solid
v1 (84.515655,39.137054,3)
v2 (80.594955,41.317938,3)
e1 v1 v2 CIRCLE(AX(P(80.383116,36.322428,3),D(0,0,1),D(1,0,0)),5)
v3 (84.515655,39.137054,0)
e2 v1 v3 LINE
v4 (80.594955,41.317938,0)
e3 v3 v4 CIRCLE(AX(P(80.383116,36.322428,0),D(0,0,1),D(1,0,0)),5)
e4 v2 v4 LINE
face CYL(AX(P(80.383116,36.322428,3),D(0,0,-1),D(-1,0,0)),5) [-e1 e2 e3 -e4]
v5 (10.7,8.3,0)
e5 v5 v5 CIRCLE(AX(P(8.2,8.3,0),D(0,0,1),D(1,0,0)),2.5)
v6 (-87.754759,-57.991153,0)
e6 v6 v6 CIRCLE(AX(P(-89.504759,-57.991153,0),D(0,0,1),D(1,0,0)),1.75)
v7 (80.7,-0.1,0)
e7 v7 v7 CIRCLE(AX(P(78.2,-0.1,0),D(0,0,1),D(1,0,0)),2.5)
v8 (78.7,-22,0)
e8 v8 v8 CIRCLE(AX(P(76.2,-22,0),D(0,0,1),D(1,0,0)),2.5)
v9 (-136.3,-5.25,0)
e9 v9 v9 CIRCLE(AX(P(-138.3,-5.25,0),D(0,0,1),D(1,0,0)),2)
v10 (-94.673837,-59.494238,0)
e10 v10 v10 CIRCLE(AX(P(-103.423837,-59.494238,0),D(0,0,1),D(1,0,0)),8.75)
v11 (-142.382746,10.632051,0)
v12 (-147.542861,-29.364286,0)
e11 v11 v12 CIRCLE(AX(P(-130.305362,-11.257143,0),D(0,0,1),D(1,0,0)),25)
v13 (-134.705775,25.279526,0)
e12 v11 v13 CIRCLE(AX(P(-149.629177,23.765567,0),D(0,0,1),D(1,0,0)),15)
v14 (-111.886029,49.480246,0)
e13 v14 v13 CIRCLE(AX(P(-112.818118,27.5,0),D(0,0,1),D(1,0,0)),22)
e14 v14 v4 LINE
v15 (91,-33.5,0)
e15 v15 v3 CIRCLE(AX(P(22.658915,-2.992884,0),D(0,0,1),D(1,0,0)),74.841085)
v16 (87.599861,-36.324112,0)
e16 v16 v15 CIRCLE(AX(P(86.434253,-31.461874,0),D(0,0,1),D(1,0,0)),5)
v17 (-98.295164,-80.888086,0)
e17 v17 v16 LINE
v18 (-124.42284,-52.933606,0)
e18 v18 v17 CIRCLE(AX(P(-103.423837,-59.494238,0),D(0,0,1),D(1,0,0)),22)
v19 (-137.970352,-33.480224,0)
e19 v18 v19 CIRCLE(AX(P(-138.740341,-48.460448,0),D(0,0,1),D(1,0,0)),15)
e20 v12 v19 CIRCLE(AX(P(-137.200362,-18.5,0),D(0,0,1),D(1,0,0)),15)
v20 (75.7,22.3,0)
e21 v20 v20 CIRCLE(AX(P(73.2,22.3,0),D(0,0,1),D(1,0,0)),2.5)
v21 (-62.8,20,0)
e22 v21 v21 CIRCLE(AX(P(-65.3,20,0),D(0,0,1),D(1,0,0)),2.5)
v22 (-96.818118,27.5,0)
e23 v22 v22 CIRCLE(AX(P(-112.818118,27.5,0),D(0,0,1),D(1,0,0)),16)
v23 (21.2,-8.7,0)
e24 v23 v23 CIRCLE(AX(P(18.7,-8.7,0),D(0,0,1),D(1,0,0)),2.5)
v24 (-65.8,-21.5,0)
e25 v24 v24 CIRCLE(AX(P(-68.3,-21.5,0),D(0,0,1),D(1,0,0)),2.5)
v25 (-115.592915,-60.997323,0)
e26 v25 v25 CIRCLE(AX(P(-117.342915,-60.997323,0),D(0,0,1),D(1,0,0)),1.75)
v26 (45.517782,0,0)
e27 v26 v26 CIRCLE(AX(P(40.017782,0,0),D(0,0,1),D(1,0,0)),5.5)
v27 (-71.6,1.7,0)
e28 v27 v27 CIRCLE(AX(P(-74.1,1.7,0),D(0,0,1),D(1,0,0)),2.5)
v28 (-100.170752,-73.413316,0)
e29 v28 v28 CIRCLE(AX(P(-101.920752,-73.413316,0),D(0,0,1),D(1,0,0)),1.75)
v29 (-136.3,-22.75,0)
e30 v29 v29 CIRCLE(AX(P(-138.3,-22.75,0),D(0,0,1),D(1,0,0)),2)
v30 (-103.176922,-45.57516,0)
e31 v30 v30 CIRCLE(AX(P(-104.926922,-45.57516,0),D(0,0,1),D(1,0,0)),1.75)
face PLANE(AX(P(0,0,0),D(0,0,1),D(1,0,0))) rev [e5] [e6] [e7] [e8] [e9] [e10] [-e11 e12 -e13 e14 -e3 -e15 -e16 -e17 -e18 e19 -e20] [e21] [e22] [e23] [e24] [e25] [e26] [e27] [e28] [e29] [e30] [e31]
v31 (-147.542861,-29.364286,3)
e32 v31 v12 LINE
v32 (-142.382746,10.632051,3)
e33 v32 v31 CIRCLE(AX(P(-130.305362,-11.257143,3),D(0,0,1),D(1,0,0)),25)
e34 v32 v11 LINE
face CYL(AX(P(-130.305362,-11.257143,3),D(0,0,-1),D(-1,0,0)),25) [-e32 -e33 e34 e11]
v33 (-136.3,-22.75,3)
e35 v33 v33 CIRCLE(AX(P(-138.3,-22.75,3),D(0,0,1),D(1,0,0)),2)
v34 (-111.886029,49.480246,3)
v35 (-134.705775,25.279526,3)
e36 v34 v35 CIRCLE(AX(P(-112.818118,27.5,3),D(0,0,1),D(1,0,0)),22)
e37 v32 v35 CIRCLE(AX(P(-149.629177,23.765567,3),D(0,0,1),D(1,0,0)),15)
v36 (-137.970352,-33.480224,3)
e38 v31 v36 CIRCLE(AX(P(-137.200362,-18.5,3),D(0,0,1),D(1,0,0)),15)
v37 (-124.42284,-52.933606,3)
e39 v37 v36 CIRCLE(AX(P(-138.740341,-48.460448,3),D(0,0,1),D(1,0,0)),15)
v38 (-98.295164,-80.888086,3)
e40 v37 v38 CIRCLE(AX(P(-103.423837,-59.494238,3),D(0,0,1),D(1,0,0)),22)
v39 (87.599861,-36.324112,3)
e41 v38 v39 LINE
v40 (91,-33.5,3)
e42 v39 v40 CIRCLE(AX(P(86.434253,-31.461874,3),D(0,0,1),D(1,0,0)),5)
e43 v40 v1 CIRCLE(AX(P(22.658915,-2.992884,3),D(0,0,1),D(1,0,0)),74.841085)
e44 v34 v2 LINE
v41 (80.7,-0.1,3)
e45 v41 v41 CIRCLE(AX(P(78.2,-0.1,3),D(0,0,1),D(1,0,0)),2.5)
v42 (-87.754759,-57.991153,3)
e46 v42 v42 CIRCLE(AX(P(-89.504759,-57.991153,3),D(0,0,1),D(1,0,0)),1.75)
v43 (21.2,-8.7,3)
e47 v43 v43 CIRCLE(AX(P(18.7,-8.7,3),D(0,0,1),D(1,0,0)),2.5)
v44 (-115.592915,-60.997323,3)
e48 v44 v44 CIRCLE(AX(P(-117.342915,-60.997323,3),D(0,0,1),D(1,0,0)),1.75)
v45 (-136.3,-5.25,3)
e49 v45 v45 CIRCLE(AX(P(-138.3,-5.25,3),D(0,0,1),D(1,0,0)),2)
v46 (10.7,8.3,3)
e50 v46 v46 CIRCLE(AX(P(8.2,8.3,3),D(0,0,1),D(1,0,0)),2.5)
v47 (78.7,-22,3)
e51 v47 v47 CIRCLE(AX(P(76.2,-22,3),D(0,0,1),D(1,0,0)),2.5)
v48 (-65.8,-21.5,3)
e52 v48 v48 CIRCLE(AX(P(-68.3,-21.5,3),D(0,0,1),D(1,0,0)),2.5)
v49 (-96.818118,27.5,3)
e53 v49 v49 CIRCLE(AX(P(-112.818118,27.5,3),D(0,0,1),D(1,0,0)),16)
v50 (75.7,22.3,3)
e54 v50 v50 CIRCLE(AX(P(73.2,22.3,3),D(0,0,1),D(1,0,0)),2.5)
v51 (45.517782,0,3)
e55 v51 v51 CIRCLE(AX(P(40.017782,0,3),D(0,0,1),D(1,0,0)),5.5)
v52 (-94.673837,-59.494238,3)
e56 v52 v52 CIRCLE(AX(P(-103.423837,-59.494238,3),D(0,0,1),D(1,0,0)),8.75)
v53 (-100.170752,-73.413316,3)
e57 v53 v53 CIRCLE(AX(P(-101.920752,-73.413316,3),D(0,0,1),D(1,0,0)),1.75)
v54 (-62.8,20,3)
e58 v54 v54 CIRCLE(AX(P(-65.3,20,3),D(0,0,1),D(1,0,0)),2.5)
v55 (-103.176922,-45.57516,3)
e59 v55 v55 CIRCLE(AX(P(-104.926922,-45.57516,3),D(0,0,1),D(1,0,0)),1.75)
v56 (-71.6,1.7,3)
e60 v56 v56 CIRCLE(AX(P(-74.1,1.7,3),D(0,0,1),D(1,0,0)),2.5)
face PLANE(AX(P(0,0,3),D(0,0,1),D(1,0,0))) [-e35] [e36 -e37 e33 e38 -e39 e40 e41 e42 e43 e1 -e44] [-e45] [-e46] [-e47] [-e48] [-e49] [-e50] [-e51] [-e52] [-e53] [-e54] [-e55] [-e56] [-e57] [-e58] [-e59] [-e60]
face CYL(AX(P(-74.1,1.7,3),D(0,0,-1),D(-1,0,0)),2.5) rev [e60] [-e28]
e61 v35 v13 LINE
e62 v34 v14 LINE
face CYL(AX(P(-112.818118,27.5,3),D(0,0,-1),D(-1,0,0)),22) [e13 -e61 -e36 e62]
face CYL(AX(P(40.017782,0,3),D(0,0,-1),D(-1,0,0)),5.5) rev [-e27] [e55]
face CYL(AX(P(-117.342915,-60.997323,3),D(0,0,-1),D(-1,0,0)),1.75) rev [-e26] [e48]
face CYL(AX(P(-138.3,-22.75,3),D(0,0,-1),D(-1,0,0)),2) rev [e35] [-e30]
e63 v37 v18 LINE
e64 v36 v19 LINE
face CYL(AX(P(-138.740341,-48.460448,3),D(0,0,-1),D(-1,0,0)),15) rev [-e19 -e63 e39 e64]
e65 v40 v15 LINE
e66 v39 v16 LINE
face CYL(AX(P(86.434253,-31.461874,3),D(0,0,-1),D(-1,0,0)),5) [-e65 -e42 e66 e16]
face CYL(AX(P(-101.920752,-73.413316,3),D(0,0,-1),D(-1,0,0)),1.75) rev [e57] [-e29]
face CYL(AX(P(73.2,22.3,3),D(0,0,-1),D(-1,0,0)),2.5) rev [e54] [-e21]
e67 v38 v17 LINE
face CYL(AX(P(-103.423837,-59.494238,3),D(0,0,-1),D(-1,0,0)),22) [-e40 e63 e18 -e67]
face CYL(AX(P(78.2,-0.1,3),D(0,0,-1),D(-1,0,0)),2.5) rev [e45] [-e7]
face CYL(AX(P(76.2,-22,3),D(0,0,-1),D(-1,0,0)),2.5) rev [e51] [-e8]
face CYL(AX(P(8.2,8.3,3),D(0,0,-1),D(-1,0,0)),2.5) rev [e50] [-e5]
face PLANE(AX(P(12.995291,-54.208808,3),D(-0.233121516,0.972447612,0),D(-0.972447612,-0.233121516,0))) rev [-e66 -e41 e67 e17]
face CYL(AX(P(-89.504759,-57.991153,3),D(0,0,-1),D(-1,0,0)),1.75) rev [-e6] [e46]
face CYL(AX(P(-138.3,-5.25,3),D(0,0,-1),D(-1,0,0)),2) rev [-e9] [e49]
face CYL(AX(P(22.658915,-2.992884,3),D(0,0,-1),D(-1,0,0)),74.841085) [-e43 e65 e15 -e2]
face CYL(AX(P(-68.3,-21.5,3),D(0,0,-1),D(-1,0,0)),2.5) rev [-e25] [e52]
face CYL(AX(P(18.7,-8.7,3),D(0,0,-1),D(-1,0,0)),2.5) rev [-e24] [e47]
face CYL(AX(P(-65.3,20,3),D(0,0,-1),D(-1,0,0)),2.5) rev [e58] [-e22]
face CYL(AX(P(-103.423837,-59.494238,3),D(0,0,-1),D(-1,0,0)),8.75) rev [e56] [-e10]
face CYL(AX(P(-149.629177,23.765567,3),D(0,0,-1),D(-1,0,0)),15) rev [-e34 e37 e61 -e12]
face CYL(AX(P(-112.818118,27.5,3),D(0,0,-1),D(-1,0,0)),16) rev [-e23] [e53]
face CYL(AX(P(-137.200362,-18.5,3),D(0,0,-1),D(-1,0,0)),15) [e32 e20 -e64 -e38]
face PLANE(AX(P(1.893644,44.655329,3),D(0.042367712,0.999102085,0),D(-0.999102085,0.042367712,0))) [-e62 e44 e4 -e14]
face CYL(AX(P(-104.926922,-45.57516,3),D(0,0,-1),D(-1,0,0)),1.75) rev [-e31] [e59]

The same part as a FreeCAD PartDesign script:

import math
import FreeCAD as App
import Part
import Sketcher

V = App.Vector
Q = App.Units.Quantity

doc = App.newDocument("Part")
body = doc.addObject("PartDesign::Body", "Body")

# Sketch on XY plane
sketch1 = body.newObject("Sketcher::SketchObject", "Sketch")
sketch1.AttachmentSupport = (doc.getObject("XY_Plane"), [""])
sketch1.MapMode = "FlatFace"
sketch1.addGeometry(Part.ArcOfCircle(Part.Circle(V(-112.818118, 27.5, 0), V(0, 0, 1), 22), math.radians(87.571782), math.radians(185.792763)), False)
sketch1.addGeometry(Part.ArcOfCircle(Part.Circle(V(-149.629177, 23.765567, 0), V(0, 0, 1), 15), math.radians(-61.112239), math.radians(5.792763)), False)
sketch1.addGeometry(Part.ArcOfCircle(Part.Circle(V(-130.305362, -11.257143, 0), V(0, 0, 1), 25), math.radians(118.887761), math.radians(226.40946)), False)
sketch1.addGeometry(Part.ArcOfCircle(Part.Circle(V(-137.200362, -18.5, 0), V(0, 0, 1), 15), math.radians(-133.59054), math.radians(-92.942437)), False)
sketch1.addGeometry(Part.ArcOfCircle(Part.Circle(V(-138.740341, -48.460448, 0), V(0, 0, 1), 15), math.radians(-17.350155), math.radians(87.057563)), False)
sketch1.addGeometry(Part.ArcOfCircle(Part.Circle(V(-103.423837, -59.494238, 0), V(0, 0, 1), 22), math.radians(162.649844), math.radians(283.48092)), False)
sketch1.addGeometry(Part.LineSegment(V(-98.295163, -80.888085, 0), V(87.599861, -36.324112, 0)), False)
sketch1.addGeometry(Part.ArcOfCircle(Part.Circle(V(86.434253, -31.461874, 0), V(0, 0, 1), 5), math.radians(-76.519082), math.radians(-24.055743)), False)
sketch1.addGeometry(Part.ArcOfCircle(Part.Circle(V(22.658915, -2.992884, 0), V(0, 0, 1), 74.841085), math.radians(-24.055744), math.radians(34.258343)), False)
sketch1.addGeometry(Part.ArcOfCircle(Part.Circle(V(80.383116, 36.322428, 0), V(0, 0, 1), 5), math.radians(34.258343), math.radians(87.571782)), False)
sketch1.addGeometry(Part.LineSegment(V(80.594955, 41.317938, 0), V(-111.886029, 49.480246, 0)), False)
sketch1.addGeometry(Part.Circle(V(-117.342915, -60.997323, 0), V(0, 0, 1), 1.75), False)
sketch1.addGeometry(Part.Circle(V(-101.920752, -73.413316, 0), V(0, 0, 1), 1.75), False)
sketch1.addGeometry(Part.Circle(V(-103.423837, -59.494238, 0), V(0, 0, 1), 8.75), False)
sketch1.addGeometry(Part.Circle(V(-89.504759, -57.991153, 0), V(0, 0, 1), 1.75), False)
sketch1.addGeometry(Part.Circle(V(-104.926922, -45.57516, 0), V(0, 0, 1), 1.75), False)
sketch1.addGeometry(Part.Circle(V(-138.3, -22.75, 0), V(0, 0, 1), 2), False)
sketch1.addGeometry(Part.Circle(V(-68.3, -21.5, 0), V(0, 0, 1), 2.5), False)
sketch1.addGeometry(Part.Circle(V(76.2, -22, 0), V(0, 0, 1), 2.5), False)
sketch1.addGeometry(Part.Circle(V(-138.3, -5.25, 0), V(0, 0, 1), 2), False)
sketch1.addGeometry(Part.Circle(V(-74.1, 1.7, 0), V(0, 0, 1), 2.5), False)
sketch1.addGeometry(Part.Circle(V(-112.818118, 27.5, 0), V(0, 0, 1), 16), False)
sketch1.addGeometry(Part.Circle(V(-65.3, 20, 0), V(0, 0, 1), 2.5), False)
sketch1.addGeometry(Part.Circle(V(18.7, -8.7, 0), V(0, 0, 1), 2.5), False)
sketch1.addGeometry(Part.Circle(V(8.2, 8.3, 0), V(0, 0, 1), 2.5), False)
sketch1.addGeometry(Part.Circle(V(40.017782, 0, 0), V(0, 0, 1), 5.5), False)
sketch1.addGeometry(Part.Circle(V(78.2, -0.1, 0), V(0, 0, 1), 2.5), False)
sketch1.addGeometry(Part.Circle(V(73.2, 22.3, 0), V(0, 0, 1), 2.5), False)
sketch1.addConstraint(Sketcher.Constraint("Tangent", 0, 2, 1, 2))
sketch1.addConstraint(Sketcher.Constraint("Tangent", 1, 1, 2, 1))
sketch1.addConstraint(Sketcher.Constraint("Tangent", 2, 2, 3, 1))
sketch1.addConstraint(Sketcher.Constraint("Tangent", 3, 2, 4, 2))
sketch1.addConstraint(Sketcher.Constraint("Tangent", 4, 1, 5, 1))
sketch1.addConstraint(Sketcher.Constraint("Tangent", 5, 2, 6, 1))
sketch1.addConstraint(Sketcher.Constraint("Tangent", 6, 2, 7, 1))
sketch1.addConstraint(Sketcher.Constraint("Tangent", 7, 2, 8, 1))
sketch1.addConstraint(Sketcher.Constraint("Tangent", 8, 2, 9, 1))
sketch1.addConstraint(Sketcher.Constraint("Tangent", 9, 2, 10, 1))
sketch1.addConstraint(Sketcher.Constraint("Tangent", 10, 2, 0, 1))
sketch1.addConstraint(Sketcher.Constraint("Coincident", 13, 3, 5, 3))
sketch1.addConstraint(Sketcher.Constraint("Coincident", 21, 3, 0, 3))
sketch1.addConstraint(Sketcher.Constraint("Equal", 1, 3))
sketch1.addConstraint(Sketcher.Constraint("Equal", 3, 4))
sketch1.addConstraint(Sketcher.Constraint("Equal", 0, 5))
sketch1.addConstraint(Sketcher.Constraint("Equal", 7, 9))
sketch1.addConstraint(Sketcher.Constraint("Equal", 11, 12))
sketch1.addConstraint(Sketcher.Constraint("Equal", 12, 14))
sketch1.addConstraint(Sketcher.Constraint("Equal", 14, 15))
sketch1.addConstraint(Sketcher.Constraint("Equal", 17, 18))
sketch1.addConstraint(Sketcher.Constraint("Equal", 16, 19))
sketch1.addConstraint(Sketcher.Constraint("Equal", 18, 20))
sketch1.addConstraint(Sketcher.Constraint("Equal", 20, 22))
sketch1.addConstraint(Sketcher.Constraint("Equal", 22, 23))
sketch1.addConstraint(Sketcher.Constraint("Equal", 23, 24))
sketch1.addConstraint(Sketcher.Constraint("Equal", 24, 26))
sketch1.addConstraint(Sketcher.Constraint("Equal", 26, 27))
sketch1.addConstraint(Sketcher.Constraint("PointOnObject", 25, 3, -1))
sketch1.addConstraint(Sketcher.Constraint("Vertical", 16, 3, 19, 3))
sketch1.addConstraint(Sketcher.Constraint("Diameter", 16, Q("4 mm")))
sketch1.addConstraint(Sketcher.Constraint("Diameter", 17, Q("5 mm")))
sketch1.addConstraint(Sketcher.Constraint("Diameter", 21, Q("32 mm")))
sketch1.addConstraint(Sketcher.Constraint("Diameter", 25, Q("11 mm")))
sketch1.addConstraint(Sketcher.Constraint("Radius", 0, Q("22 mm")))
sketch1.addConstraint(Sketcher.Constraint("Radius", 1, Q("15 mm")))
sketch1.addConstraint(Sketcher.Constraint("Radius", 2, Q("25 mm")))
sketch1.addConstraint(Sketcher.Constraint("Radius", 7, Q("5 mm")))
sketch1.addConstraint(Sketcher.Constraint("Diameter", 11, Q("3.5 mm")))
sketch1.addConstraint(Sketcher.Constraint("Diameter", 13, Q("17.5 mm")))
sketch1.addConstraint(Sketcher.Constraint("DistanceY", 18, 3, -1, 1, Q("22 mm")))
sketch1.addConstraint(Sketcher.Constraint("DistanceY", -1, 1, 22, 3, Q("20 mm")))
sketch1.addConstraint(Sketcher.Constraint("DistanceX", -1, 1, 7, 2, Q("91 mm")))
sketch1.addConstraint(Sketcher.Constraint("DistanceY", 3, 3, 0, 3, Q("46 mm")))
sketch1.addConstraint(Sketcher.Constraint("DistanceX", 17, 3, 22, 3, Q("3 mm")))
sketch1.addConstraint(Sketcher.Constraint("DistanceX", 17, 3, 23, 3, Q("87 mm")))
sketch1.addConstraint(Sketcher.Constraint("DistanceY", 23, 3, 24, 3, Q("17 mm")))
sketch1.addConstraint(Sketcher.Constraint("DistanceX", 24, 3, 18, 3, Q("68 mm")))
sketch1.addConstraint(Sketcher.Constraint("DistanceX", 18, 3, 26, 3, Q("2 mm")))
sketch1.addConstraint(Sketcher.Constraint("DistanceX", 27, 3, 26, 3, Q("5 mm")))
sketch1.addConstraint(Sketcher.Constraint("DistanceY", -1, 1, 0, 3, Q("27.5 mm")))
sketch1.addConstraint(Sketcher.Constraint("DistanceX", 16, 3, -1, 1, Q("138.3 mm")))
sketch1.addConstraint(Sketcher.Constraint("DistanceX", 17, 3, -1, 1, Q("68.3 mm")))
sketch1.addConstraint(Sketcher.Constraint("DistanceY", 17, 3, -1, 1, Q("21.5 mm")))
sketch1.addConstraint(Sketcher.Constraint("DistanceX", -1, 1, 18, 3, Q("76.2 mm")))
sketch1.addConstraint(Sketcher.Constraint("DistanceX", 20, 3, -1, 1, Q("74.1 mm")))
sketch1.addConstraint(Sketcher.Constraint("DistanceY", -1, 1, 20, 3, Q("1.7 mm")))
sketch1.addConstraint(Sketcher.Constraint("DistanceY", 23, 3, -1, 1, Q("8.7 mm")))
sketch1.addConstraint(Sketcher.Constraint("DistanceY", 26, 3, -1, 1, Q("0.1 mm")))
sketch1.addConstraint(Sketcher.Constraint("DistanceY", -1, 1, 27, 3, Q("22.3 mm")))
sketch1.addConstraint(Sketcher.Constraint("DistanceY", 7, 2, -1, 1, Q("33.5 mm")))
sketch1.addConstraint(Sketcher.Constraint("DistanceY", 16, 3, 19, 3, Q("17.5 mm")))
sketch1.addConstraint(Sketcher.Constraint("DistanceY", 16, 3, -1, 1, Q("22.75 mm")))
sketch1.addConstraint(Sketcher.Constraint("Radius", 8, Q("74.841085 mm")))
sketch1.addConstraint(Sketcher.Constraint("DistanceX", 3, 3, 2, 3, Q("6.895 mm")))
sketch1.addConstraint(Sketcher.Constraint("DistanceY", 7, 3, 9, 3, Q("67.784301 mm")))
sketch1.addConstraint(Sketcher.Constraint("DistanceX", 8, 3, 9, 3, Q("57.724201 mm")))
sketch1.addConstraint(Sketcher.Constraint("DistanceX", 1, 3, 0, 2, Q("14.923402 mm")))
sketch1.addConstraint(Sketcher.Constraint("DistanceX", 4, 3, 4, 1, Q("14.317502 mm")))
sketch1.addConstraint(Sketcher.Constraint("Distance", 10, Q("192.65397 mm")))
sketch1.addConstraint(Sketcher.Constraint("DistanceX", 4, 3, -1, 1, Q("138.740341 mm")))
sketch1.addConstraint(Sketcher.Constraint("DistanceX", 12, 3, -1, 1, Q("101.920752 mm")))
sketch1.addConstraint(Sketcher.Constraint("DistanceX", 14, 3, -1, 1, Q("89.504759 mm")))
sketch1.addConstraint(Sketcher.Constraint("DistanceX", 15, 3, -1, 1, Q("104.926922 mm")))
sketch1.addConstraint(Sketcher.Constraint("DistanceY", 15, 3, -1, 1, Q("45.57516 mm")))
sketch1.addConstraint(Sketcher.Constraint("DistanceX", 11, 3, 5, 3, Q("13.919078 mm")))
sketch1.addConstraint(Sketcher.Constraint("DistanceY", 11, 3, 2, 3, Q("49.74018 mm")))
sketch1.addConstraint(Sketcher.Constraint("DistanceY", 12, 3, 5, 3, Q("13.919078 mm")))
sketch1.addConstraint(Sketcher.Constraint("DistanceY", 11, 3, 14, 3, Q("3.00617 mm")))
sketch1.addConstraint(Sketcher.Constraint("DistanceX", 25, 3, 6, 2, Q("47.582079 mm")))
pad1 = body.newObject("PartDesign::Pad", "Pad")
pad1.Profile = sketch1
pad1.Length = 3

doc.recompute()
